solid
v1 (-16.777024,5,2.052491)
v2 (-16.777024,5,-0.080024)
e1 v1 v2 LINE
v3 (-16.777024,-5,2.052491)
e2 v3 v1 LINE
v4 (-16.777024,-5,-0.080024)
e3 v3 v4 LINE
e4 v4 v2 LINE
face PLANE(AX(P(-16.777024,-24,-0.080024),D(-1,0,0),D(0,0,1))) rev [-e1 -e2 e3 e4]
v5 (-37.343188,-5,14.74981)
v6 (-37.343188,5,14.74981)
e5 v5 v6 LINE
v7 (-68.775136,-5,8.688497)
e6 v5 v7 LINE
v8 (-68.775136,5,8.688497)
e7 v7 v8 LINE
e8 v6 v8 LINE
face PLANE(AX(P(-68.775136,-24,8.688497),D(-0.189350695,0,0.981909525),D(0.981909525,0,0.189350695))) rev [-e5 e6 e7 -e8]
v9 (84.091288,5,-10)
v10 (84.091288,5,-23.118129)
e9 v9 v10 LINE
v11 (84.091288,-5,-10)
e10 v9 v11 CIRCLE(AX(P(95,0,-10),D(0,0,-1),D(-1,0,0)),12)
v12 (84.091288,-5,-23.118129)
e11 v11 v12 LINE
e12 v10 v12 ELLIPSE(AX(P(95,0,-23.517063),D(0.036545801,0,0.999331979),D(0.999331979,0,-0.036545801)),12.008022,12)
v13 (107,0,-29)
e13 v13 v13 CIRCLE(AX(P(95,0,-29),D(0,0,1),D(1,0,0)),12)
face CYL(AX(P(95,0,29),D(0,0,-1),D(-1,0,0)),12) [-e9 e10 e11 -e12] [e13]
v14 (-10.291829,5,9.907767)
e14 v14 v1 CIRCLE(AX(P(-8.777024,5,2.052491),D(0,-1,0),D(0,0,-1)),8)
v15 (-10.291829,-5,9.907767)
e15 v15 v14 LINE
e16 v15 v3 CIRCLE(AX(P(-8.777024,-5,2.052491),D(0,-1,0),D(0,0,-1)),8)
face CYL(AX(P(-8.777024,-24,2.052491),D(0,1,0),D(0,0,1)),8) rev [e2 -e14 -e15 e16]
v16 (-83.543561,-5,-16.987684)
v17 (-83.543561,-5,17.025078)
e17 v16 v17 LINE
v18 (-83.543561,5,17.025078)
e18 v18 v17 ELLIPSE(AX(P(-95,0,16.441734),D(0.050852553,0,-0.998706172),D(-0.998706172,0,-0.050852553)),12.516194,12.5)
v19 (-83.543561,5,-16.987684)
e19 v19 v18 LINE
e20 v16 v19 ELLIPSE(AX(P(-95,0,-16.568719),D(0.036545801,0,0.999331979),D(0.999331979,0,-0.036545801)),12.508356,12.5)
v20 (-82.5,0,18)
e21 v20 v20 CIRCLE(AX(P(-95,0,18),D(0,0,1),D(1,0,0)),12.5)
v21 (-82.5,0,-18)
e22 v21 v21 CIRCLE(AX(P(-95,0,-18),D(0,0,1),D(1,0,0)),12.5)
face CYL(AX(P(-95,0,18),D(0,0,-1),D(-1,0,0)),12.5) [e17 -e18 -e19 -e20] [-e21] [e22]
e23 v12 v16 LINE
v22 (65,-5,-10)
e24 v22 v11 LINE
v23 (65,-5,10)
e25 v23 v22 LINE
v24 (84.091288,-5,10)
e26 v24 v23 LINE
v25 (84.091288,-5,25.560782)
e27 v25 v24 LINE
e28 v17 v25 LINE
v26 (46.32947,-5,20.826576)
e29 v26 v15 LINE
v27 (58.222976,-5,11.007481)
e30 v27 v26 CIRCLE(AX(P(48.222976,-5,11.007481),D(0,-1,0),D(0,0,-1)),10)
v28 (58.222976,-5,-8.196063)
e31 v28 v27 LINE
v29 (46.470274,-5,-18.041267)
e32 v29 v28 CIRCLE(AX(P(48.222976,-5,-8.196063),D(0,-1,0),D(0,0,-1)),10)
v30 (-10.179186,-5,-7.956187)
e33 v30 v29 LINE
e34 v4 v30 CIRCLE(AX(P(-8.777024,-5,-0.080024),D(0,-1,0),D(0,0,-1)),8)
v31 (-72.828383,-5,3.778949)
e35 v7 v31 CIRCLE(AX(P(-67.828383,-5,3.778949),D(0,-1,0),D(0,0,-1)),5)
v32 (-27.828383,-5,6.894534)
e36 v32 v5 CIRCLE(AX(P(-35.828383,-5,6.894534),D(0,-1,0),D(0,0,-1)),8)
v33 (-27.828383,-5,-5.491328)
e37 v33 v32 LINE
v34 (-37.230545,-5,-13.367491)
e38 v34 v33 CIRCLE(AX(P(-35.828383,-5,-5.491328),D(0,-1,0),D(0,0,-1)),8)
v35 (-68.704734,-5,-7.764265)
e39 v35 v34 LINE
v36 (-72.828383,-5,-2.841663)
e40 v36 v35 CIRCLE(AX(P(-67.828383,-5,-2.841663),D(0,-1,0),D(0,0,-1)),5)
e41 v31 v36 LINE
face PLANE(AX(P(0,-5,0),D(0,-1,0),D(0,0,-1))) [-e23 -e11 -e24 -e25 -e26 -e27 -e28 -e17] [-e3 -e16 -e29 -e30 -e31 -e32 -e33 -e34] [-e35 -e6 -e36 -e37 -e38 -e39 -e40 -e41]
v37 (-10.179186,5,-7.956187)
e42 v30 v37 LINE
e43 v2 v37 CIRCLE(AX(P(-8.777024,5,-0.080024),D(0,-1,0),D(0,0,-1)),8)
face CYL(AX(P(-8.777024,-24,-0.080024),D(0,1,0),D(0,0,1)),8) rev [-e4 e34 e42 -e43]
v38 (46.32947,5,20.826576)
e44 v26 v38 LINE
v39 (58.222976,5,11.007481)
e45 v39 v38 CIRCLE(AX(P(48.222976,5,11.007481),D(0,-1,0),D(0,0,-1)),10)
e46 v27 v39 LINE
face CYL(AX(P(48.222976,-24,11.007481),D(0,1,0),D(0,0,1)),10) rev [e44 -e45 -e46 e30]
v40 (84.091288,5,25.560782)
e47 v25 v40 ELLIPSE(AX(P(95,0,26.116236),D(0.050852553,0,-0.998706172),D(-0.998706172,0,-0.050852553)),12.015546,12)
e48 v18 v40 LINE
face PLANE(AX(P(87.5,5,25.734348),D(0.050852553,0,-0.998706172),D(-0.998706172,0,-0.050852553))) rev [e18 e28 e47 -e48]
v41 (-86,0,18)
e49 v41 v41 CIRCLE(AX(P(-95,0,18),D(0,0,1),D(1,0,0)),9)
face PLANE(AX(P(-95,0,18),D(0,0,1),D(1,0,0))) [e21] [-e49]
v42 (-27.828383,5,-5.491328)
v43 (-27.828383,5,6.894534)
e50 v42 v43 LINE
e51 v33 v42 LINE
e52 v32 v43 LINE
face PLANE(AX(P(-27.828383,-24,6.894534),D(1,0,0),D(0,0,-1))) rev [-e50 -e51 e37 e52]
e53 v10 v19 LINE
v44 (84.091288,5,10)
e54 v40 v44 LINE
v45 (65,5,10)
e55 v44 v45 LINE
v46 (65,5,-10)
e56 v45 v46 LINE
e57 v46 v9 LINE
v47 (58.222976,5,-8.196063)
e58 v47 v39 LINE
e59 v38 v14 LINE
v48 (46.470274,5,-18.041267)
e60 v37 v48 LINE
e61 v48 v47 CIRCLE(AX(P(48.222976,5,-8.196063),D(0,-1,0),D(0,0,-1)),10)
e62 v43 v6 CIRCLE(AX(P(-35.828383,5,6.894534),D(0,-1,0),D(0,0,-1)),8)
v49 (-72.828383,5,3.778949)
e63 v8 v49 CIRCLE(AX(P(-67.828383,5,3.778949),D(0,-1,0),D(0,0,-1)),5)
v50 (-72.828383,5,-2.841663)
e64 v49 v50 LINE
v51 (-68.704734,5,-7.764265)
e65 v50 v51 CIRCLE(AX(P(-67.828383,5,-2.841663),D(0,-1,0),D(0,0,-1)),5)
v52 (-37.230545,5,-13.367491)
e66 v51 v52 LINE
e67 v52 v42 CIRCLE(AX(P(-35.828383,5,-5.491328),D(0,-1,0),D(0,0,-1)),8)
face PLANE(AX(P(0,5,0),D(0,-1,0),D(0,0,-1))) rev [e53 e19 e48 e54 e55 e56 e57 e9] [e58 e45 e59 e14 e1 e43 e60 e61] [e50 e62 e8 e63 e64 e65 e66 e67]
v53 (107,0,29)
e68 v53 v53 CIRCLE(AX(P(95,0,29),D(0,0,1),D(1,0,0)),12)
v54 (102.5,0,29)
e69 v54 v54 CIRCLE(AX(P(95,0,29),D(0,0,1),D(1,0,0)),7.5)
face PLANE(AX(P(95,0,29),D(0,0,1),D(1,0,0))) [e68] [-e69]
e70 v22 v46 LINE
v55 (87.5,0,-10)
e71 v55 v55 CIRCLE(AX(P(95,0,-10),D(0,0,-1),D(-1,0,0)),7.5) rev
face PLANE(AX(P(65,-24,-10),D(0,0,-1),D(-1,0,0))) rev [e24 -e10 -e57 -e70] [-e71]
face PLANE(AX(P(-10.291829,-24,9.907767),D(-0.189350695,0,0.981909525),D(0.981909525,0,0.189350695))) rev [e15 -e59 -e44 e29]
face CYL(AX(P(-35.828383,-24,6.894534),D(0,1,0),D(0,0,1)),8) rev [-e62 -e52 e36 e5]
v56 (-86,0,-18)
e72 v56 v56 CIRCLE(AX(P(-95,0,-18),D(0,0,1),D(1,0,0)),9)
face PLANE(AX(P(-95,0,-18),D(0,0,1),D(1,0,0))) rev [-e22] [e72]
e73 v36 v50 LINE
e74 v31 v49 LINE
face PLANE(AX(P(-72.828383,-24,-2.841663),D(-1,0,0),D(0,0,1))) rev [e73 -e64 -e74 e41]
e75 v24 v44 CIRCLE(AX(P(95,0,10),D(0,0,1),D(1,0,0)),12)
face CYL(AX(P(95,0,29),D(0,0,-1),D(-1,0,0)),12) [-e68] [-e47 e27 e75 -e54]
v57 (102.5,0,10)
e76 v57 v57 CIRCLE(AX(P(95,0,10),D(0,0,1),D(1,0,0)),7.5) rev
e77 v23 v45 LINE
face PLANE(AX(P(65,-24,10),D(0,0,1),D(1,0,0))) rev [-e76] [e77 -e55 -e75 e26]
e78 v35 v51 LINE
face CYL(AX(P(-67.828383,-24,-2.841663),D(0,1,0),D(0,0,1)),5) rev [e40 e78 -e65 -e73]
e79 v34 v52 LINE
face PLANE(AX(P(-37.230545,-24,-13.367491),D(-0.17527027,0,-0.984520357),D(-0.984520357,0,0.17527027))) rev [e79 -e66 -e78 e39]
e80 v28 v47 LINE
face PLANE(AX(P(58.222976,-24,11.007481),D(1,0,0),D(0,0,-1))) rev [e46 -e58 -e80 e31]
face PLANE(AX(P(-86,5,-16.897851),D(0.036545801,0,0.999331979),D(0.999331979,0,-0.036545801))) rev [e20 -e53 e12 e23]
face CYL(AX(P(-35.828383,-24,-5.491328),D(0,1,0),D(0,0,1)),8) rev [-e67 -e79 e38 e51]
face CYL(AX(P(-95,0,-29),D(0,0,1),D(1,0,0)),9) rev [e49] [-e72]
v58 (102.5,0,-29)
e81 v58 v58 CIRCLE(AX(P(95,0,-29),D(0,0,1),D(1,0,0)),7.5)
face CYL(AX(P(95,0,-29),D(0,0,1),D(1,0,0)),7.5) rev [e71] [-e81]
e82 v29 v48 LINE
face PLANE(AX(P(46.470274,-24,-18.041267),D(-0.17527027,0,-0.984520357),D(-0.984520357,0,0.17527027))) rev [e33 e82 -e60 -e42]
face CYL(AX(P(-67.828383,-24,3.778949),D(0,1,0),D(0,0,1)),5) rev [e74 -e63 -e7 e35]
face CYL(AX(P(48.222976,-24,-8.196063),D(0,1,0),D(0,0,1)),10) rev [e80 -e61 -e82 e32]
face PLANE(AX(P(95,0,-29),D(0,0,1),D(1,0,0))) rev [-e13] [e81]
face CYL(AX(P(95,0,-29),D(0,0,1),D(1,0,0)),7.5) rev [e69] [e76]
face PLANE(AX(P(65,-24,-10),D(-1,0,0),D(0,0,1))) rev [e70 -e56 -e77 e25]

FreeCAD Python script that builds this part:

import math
import FreeCAD as App
import Part
import Sketcher
from FreeCAD import Vector

doc = App.newDocument("Part")
params = doc.addObject("Spreadsheet::Sheet", "Params")
for row, (alias, value) in enumerate([
    ("sketch1_diameter", "18 mm"),
    ("pad1_length", "36 mm"),
    ("sketch2_diameter", "15 mm"),
    ("pad2_length", "58 mm"),
    ("pad3_length", "10 mm"),
    ("sketch4_diameter", "25 mm"),
    ("pad4_length", "36 mm"),
    ("sketch5_diameter", "24 mm"),
    ("pad5_length", "58 mm"),
    ("sketch6_diameter", "18 mm"),
    ("sketch6_diameter2", "15 mm"),
    ("pocket1_length", "58 mm"),
    ("sketch7_width", "42 mm"),
    ("sketch7_height", "20 mm"),
    ("pocket2_length", "58 mm"),
    ("sketch8_radius", "5 mm"),
    ("sketch8_radius2", "8 mm"),
    ("sketch8_radius3", "8 mm"),
    ("sketch8_radius4", "5 mm"),
    ("sketch8_radius5", "8 mm"),
    ("pocket3_length", "58 mm"),
], start=1):
    params.set(f"A{row}", alias)
    params.set(f"B{row}", "=" + value)
    params.setAlias(f"B{row}", alias)

body = doc.addObject("PartDesign::Body", "Body")

# Sketch on XY plane
sketch1 = body.newObject("Sketcher::SketchObject", "Sketch")
sketch1.AttachmentSupport = (doc.getObject("XY_Plane"), [""])
sketch1.MapMode = "FlatFace"
sketch1.addGeometry(Part.Circle(Vector(-95, 0, 0), Vector(0, 0, 1), 9), False)
sketch1.addConstraint([
    Sketcher.Constraint("PointOnObject", 0, 3, -1),
    Sketcher.Constraint("Diameter", 0, 18.0),
    Sketcher.Constraint("DistanceX", 0, 3, -1, 1, 95.0),
])
sketch1.setExpression("Constraints[1]", "Params.sketch1_diameter")
pad1 = body.newObject("PartDesign::Pad", "Pad")
pad1.Profile = sketch1
pad1.setExpression("Length", "Params.pad1_length")
pad1.Midplane = True
body2 = doc.addObject("PartDesign::Body", "Body001")

# Sketch on XY plane
sketch2 = body2.newObject("Sketcher::SketchObject", "Sketch001")
sketch2.AttachmentSupport = (doc.getObject("XY_Plane001"), [""])
sketch2.MapMode = "FlatFace"
sketch2.addGeometry(Part.Circle(Vector(95, 0, 0), Vector(0, 0, 1), 8), False)
sketch2.addConstraint([
    Sketcher.Constraint("PointOnObject", 0, 3, -1),
    Sketcher.Constraint("Diameter", 0, 15.0),
    Sketcher.Constraint("DistanceX", -1, 1, 0, 3, 95.0),
])
sketch2.setExpression("Constraints[1]", "Params.sketch2_diameter")
pad2 = body2.newObject("PartDesign::Pad", "Pad001")
pad2.Profile = sketch2
pad2.setExpression("Length", "Params.pad2_length")
pad2.Midplane = True
body3 = doc.addObject("PartDesign::Body", "Body002")

# Sketch on XZ plane
sketch3 = body3.newObject("Sketcher::SketchObject", "Sketch002")
sketch3.AttachmentSupport = (doc.getObject("XZ_Plane002"), [""])
sketch3.MapMode = "FlatFace"
sketch3.addGeometry([
    Part.LineSegment(Vector(-86, -17, 0), Vector(-86, 17, 0)),
    Part.LineSegment(Vector(-86, 17, 0), Vector(88, 26, 0)),
    Part.LineSegment(Vector(88, 26, 0), Vector(88, -23, 0)),
    Part.LineSegment(Vector(88, -23, 0), Vector(-86, -17, 0)),
], False)
sketch3.addConstraint([
    Sketcher.Constraint("Coincident", 0, 2, 1, 1),
    Sketcher.Constraint("Coincident", 1, 2, 2, 1),
    Sketcher.Constraint("Coincident", 2, 2, 3, 1),
    Sketcher.Constraint("Coincident", 3, 2, 0, 1),
    Sketcher.Constraint("Vertical", 0),
    Sketcher.Constraint("Vertical", 2),
    Sketcher.Constraint("DistanceX", 0, 2, -1, 1, 86.0),
    Sketcher.Constraint("DistanceY", -1, 1, 0, 2, 16.9),
    Sketcher.Constraint("DistanceX", -1, 1, 1, 2, 87.5),
    Sketcher.Constraint("DistanceY", 0, 1, 0, 2, 33.797851),
    Sketcher.Constraint("DistanceY", 3, 2, 1, 2, 42.6322),
    Sketcher.Constraint("Distance", 3, 173.615979),
])
pad3 = body3.newObject("PartDesign::Pad", "Pad002")
pad3.Profile = sketch3
pad3.setExpression("Length", "Params.pad3_length")
pad3.Midplane = True
body.AllowCompound = True
doc.recompute()

boolean = body.newObject("PartDesign::Boolean", "Boolean")
boolean.Type = "Fuse"
boolean.addObjects([body3])

# Sketch on XY plane
sketch4 = body.newObject("Sketcher::SketchObject", "Sketch003")
sketch4.AttachmentSupport = (doc.getObject("XY_Plane"), [""])
sketch4.MapMode = "FlatFace"
sketch4.addGeometry(Part.Circle(Vector(-95, 0, 0), Vector(0, 0, 1), 12), False)
sketch4.addConstraint([
    Sketcher.Constraint("PointOnObject", 0, 3, -1),
    Sketcher.Constraint("Diameter", 0, 25.0),
    Sketcher.Constraint("DistanceX", 0, 3, -1, 1, 95.0),
])
sketch4.setExpression("Constraints[1]", "Params.sketch4_diameter")
pad4 = body.newObject("PartDesign::Pad", "Pad003")
pad4.Profile = sketch4
pad4.setExpression("Length", "Params.pad4_length")
pad4.Midplane = True
doc.recompute()

boolean2 = body.newObject("PartDesign::Boolean", "Boolean001")
boolean2.Type = "Fuse"
boolean2.addObjects([body2])

# Sketch on XY plane
sketch5 = body.newObject("Sketcher::SketchObject", "Sketch004")
sketch5.AttachmentSupport = (doc.getObject("XY_Plane"), [""])
sketch5.MapMode = "FlatFace"
sketch5.addGeometry(Part.Circle(Vector(95, 0, 0), Vector(0, 0, 1), 12), False)
sketch5.addConstraint([
    Sketcher.Constraint("PointOnObject", 0, 3, -1),
    Sketcher.Constraint("Diameter", 0, 24.0),
    Sketcher.Constraint("DistanceX", -1, 1, 0, 3, 95.0),
])
sketch5.setExpression("Constraints[1]", "Params.sketch5_diameter")
pad5 = body.newObject("PartDesign::Pad", "Pad004")
pad5.Profile = sketch5
pad5.setExpression("Length", "Params.pad5_length")
pad5.Midplane = True

# Sketch on XY plane
sketch6 = body.newObject("Sketcher::SketchObject", "Sketch005")
sketch6.AttachmentSupport = (doc.getObject("XY_Plane"), [""])
sketch6.MapMode = "FlatFace"
sketch6.addGeometry([
    Part.Circle(Vector(-95, 0, 0), Vector(0, 0, 1), 9),
    Part.Circle(Vector(95, 0, 0), Vector(0, 0, 1), 8),
], False)
sketch6.addConstraint([
    Sketcher.Constraint("Symmetric", 0, 3, 1, 3, -1, 1),
    Sketcher.Constraint("PointOnObject", 0, 3, -1),
    Sketcher.Constraint("Diameter", 0, 18.0),
    Sketcher.Constraint("Diameter", 1, 15.0),
    Sketcher.Constraint("DistanceX", 0, 3, -1, 1, 95.0),
])
sketch6.setExpression("Constraints[2]", "Params.sketch6_diameter")
sketch6.setExpression("Constraints[3]", "Params.sketch6_diameter2")
pocket1 = body.newObject("PartDesign::Pocket", "Pocket")
pocket1.Profile = sketch6
pocket1.setExpression("Length", "Params.pocket1_length")
pocket1.Midplane = True

# Sketch on XZ plane
sketch7 = body.newObject("Sketcher::SketchObject", "Sketch006")
sketch7.AttachmentSupport = (doc.getObject("XZ_Plane"), [""])
sketch7.MapMode = "FlatFace"
sketch7.AttachmentOffset = App.Placement(Vector(0, 0, -5), App.Rotation())
sketch7.addGeometry([
    Part.LineSegment(Vector(65, -10, 0), Vector(65, 10, 0)),
    Part.LineSegment(Vector(65, 10, 0), Vector(107, 10, 0)),
    Part.LineSegment(Vector(107, 10, 0), Vector(107, -10, 0)),
    Part.LineSegment(Vector(107, -10, 0), Vector(65, -10, 0)),
], False)
sketch7.addConstraint([
    Sketcher.Constraint("Coincident", 0, 2, 1, 1),
    Sketcher.Constraint("Coincident", 1, 2, 2, 1),
    Sketcher.Constraint("Coincident", 2, 2, 3, 1),
    Sketcher.Constraint("Coincident", 3, 2, 0, 1),
    Sketcher.Constraint("Vertical", 0),
    Sketcher.Constraint("Horizontal", 1),
    Sketcher.Constraint("Vertical", 2),
    Sketcher.Constraint("Horizontal", 3),
    Sketcher.Constraint("DistanceX", 1, 1, 1, 2, 42.0),
    Sketcher.Constraint("DistanceY", 0, 1, 0, 2, 20.0),
    Sketcher.Constraint("DistanceX", -1, 1, 0, 2, 65.0),
    Sketcher.Constraint("DistanceY", -1, 1, 0, 2, 10.0),
])
sketch7.setExpression("Constraints[8]", "Params.sketch7_width")
sketch7.setExpression("Constraints[9]", "Params.sketch7_height")
pocket2 = body.newObject("PartDesign::Pocket", "Pocket001")
pocket2.Profile = sketch7
pocket2.setExpression("Length", "Params.pocket2_length")
pocket2.Midplane = True

# Sketch on XZ plane
sketch8 = body.newObject("Sketcher::SketchObject", "Sketch007")
sketch8.AttachmentSupport = (doc.getObject("XZ_Plane"), [""])
sketch8.MapMode = "FlatFace"
sketch8.AttachmentOffset = App.Placement(Vector(0, 0, -5), App.Rotation())
sketch8.addGeometry([
    Part.LineSegment(Vector(-72.828383, -2.841663, 0), Vector(-72.828383, 3.778949, 0)),  # 0
    Part.ArcOfCircle(Part.Circle(Vector(-67.828383, 3.778949, 0), Vector(0, 0, 1), 5), math.radians(100.914894), math.radians(180)),  # 1
    Part.LineSegment(Vector(-68.775136, 8.688497, 0), Vector(-37.343188, 14.74981, 0)),  # 2
    Part.ArcOfCircle(Part.Circle(Vector(-35.828383, 6.894534, 0), Vector(0, 0, 1), 8), math.radians(0), math.radians(100.914894)),  # 3
    Part.LineSegment(Vector(-27.828383, 6.894534, 0), Vector(-27.828383, -5.491328, 0)),  # 4
    Part.ArcOfCircle(Part.Circle(Vector(-35.828383, -5.491328, 0), Vector(0, 0, 1), 8), math.radians(-100.094387), math.radians(0)),  # 5
    Part.LineSegment(Vector(-37.230545, -13.367491, 0), Vector(-68.704734, -7.764265, 0)),  # 6
    Part.ArcOfCircle(Part.Circle(Vector(-67.828383, -2.841663, 0), Vector(0, 0, 1), 5), math.radians(-180), math.radians(-100.094387)),  # 7
    Part.LineSegment(Vector(-16.777024, -0.080024, 0), Vector(-16.777024, 2.052491, 0)),  # 8
    Part.ArcOfCircle(Part.Circle(Vector(-8.777024, 2.052491, 0), Vector(0, 0, 1), 8), math.radians(100.914894), math.radians(180)),  # 9
    Part.LineSegment(Vector(-10.291829, 9.907767, 0), Vector(46.32947, 20.826576, 0)),  # 10
    Part.ArcOfCircle(Part.Circle(Vector(48.222976, 11.007481, 0), Vector(0, 0, 1), 10), math.radians(0), math.radians(100.914894)),  # 11
    Part.LineSegment(Vector(58.222976, 11.007481, 0), Vector(58.222976, -8.196063, 0)),  # 12
    Part.ArcOfCircle(Part.Circle(Vector(48.222976, -8.196063, 0), Vector(0, 0, 1), 10), math.radians(-100.094387), math.radians(0)),  # 13
    Part.LineSegment(Vector(46.470274, -18.041267, 0), Vector(-10.179186, -7.956187, 0)),  # 14
    Part.ArcOfCircle(Part.Circle(Vector(-8.777024, -0.080024, 0), Vector(0, 0, 1), 8), math.radians(180), math.radians(259.905613)),  # 15
], False)
sketch8.addConstraint([
    Sketcher.Constraint("Coincident", 0, 2, 1, 2),
    Sketcher.Constraint("Coincident", 1, 1, 2, 1),
    Sketcher.Constraint("Coincident", 2, 2, 3, 2),
    Sketcher.Constraint("Coincident", 3, 1, 4, 1),
    Sketcher.Constraint("Coincident", 4, 2, 5, 2),
    Sketcher.Constraint("Coincident", 5, 1, 6, 1),
    Sketcher.Constraint("Coincident", 6, 2, 7, 2),
    Sketcher.Constraint("Coincident", 7, 1, 0, 1),
    Sketcher.Constraint("Coincident", 8, 2, 9, 2),
    Sketcher.Constraint("Coincident", 9, 1, 10, 1),
    Sketcher.Constraint("Coincident", 10, 2, 11, 2),
    Sketcher.Constraint("Coincident", 11, 1, 12, 1),
    Sketcher.Constraint("Coincident", 12, 2, 13, 2),
    Sketcher.Constraint("Coincident", 13, 1, 14, 1),
    Sketcher.Constraint("Coincident", 14, 2, 15, 2),
    Sketcher.Constraint("Coincident", 15, 1, 8, 1),
    Sketcher.Constraint("Vertical", 0),
    Sketcher.Constraint("Vertical", 4),
    Sketcher.Constraint("Vertical", 8),
    Sketcher.Constraint("Vertical", 12),
    Sketcher.Constraint("Radius", 1, 5.0),
    Sketcher.Constraint("Radius", 3, 8.0),
    Sketcher.Constraint("Radius", 5, 8.0),
    Sketcher.Constraint("Radius", 7, 5.0),
    Sketcher.Constraint("Radius", 9, 8.0),
    Sketcher.Constraint("Radius", 11, 10.0),
    Sketcher.Constraint("Radius", 13, 10.0),
    Sketcher.Constraint("Radius", 15, 8.0),
    Sketcher.Constraint("DistanceX", 1, 3, 3, 3, 32.0),
    Sketcher.Constraint("DistanceX", 9, 3, 11, 3, 57.0),
    Sketcher.Constraint("DistanceY", 4, 2, 4, 1, 12.385861),
    Sketcher.Constraint("DistanceY", 13, 3, 7, 3, 5.3544),
    Sketcher.Constraint("DistanceY", 5, 1, 2, 2, 28.117301),
    Sketcher.Constraint("DistanceY", 6, 2, 7, 3, 4.922602),
    Sketcher.Constraint("DistanceY", 6, 2, 7, 1, 4.922602),
    Sketcher.Constraint("DistanceX", 9, 1, 10, 2, 56.621299),
    Sketcher.Constraint("DistanceY", 15, 3, 10, 2, 20.9066),
    Sketcher.Constraint("Distance", 6, 31.969059),
    Sketcher.Constraint("Distance", 14, 57.540161),
    Sketcher.Constraint("DistanceY", 0, 1, 0, 2, 6.620612),
    Sketcher.Constraint("DistanceY", 8, 1, 8, 2, 2.132515),
    Sketcher.Constraint("DistanceY", 12, 2, 12, 1, 19.203544),
    Sketcher.Constraint("DistanceY", -1, 1, 1, 3, 3.778949),
    Sketcher.Constraint("DistanceY", -1, 1, 9, 3, 2.052491),
    Sketcher.Constraint("DistanceY", -1, 1, 11, 3, 11.007481),
    Sketcher.Constraint("DistanceY", -1, 1, 0, 2, 3.778949),
    Sketcher.Constraint("DistanceX", 2, 2, -1, 1, 37.343188),
    Sketcher.Constraint("DistanceY", -1, 1, 2, 2, 14.74981),
    Sketcher.Constraint("DistanceY", -1, 1, 8, 2, 2.052491),
    Sketcher.Constraint("DistanceX", 9, 1, -1, 1, 10.291829),
    Sketcher.Constraint("DistanceY", -1, 1, 11, 1, 11.007481),
    Sketcher.Constraint("DistanceY", 5, 3, 3, 3, 12.385861),
    Sketcher.Constraint("DistanceX", 3, 3, 9, 3, 27.051359),
    Sketcher.Constraint("DistanceY", 7, 3, 1, 1, 11.53016),
    Sketcher.Constraint("DistanceY", 5, 3, 3, 1, 12.385861),
    Sketcher.Constraint("DistanceY", 14, 2, 9, 3, 10.008678),
])
sketch8.setExpression("Constraints[20]", "Params.sketch8_radius")
sketch8.setExpression("Constraints[21]", "Params.sketch8_radius2")
sketch8.setExpression("Constraints[22]", "Params.sketch8_radius3")
sketch8.setExpression("Constraints[23]", "Params.sketch8_radius4")
sketch8.setExpression("Constraints[24]", "Params.sketch8_radius5")
pocket3 = body.newObject("PartDesign::Pocket", "Pocket002")
pocket3.Profile = sketch8
pocket3.setExpression("Length", "Params.pocket3_length")
pocket3.Midplane = True

doc.recompute()
